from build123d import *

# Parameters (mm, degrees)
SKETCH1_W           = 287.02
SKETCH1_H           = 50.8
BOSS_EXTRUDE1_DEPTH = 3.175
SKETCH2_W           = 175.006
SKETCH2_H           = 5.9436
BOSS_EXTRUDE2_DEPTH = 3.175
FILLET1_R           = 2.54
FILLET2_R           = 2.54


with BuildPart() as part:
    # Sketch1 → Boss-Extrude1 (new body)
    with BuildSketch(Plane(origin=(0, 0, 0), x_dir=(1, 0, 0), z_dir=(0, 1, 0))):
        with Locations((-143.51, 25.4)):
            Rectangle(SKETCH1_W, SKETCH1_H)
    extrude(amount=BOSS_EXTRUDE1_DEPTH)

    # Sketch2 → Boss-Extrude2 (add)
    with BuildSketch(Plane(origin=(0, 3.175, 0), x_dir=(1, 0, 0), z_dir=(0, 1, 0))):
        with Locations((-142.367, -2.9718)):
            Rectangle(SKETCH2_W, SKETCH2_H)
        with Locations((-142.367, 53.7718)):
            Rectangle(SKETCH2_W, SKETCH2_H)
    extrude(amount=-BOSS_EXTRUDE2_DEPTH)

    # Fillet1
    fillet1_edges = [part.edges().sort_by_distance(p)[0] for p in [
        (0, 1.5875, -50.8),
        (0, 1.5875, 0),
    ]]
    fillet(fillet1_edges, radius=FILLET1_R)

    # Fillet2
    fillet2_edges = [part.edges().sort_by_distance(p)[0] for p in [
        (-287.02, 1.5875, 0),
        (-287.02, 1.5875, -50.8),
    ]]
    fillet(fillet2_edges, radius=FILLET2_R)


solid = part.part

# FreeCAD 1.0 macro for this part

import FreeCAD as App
import Part
import Sketcher

V = App.Vector
Q = App.Units.Quantity


def edges_at(feature, points):
    """Names of the edges that pass closest to the given points."""
    edges = feature.Shape.Edges
    near = lambda p: min(range(len(edges)), key=lambda i: edges[i].distToShape(Part.Vertex(*p))[0])
    return sorted({f"Edge{near(p) + 1}" for p in points})


def add_polygon(sketch, points):
    """Adds a closed chain of lines whose ends are joined by coincident constraints."""
    first, n = sketch.GeometryCount, len(points)
    for a, b in zip(points, points[1:] + points[:1]):
        sketch.addGeometry(Part.LineSegment(App.Vector(*a, 0), App.Vector(*b, 0)), False)
    for i in range(n):
        sketch.addConstraint(Sketcher.Constraint("Coincident", first + i, 2, first + (i + 1) % n, 1))

doc = App.newDocument("Part")
body = doc.addObject("PartDesign::Body", "Body")

sketch1 = doc.addObject("Sketcher::SketchObject", "Sketch")
body.addObject(sketch1)
sketch1.AttachmentSupport = (doc.XZ_Plane, [""])
sketch1.MapMode = "FlatFace"
add_polygon(sketch1, [(-287.02, -50.8), (-287.02, 0), (0, 0), (0, -50.8)])
sketch1.addConstraint(Sketcher.Constraint("Vertical", 0))
sketch1.addConstraint(Sketcher.Constraint("Horizontal", 1))
sketch1.addConstraint(Sketcher.Constraint("Vertical", 2))
sketch1.addConstraint(Sketcher.Constraint("Horizontal", 3))
sketch1.addConstraint(Sketcher.Constraint("Coincident", 1, 2, -1, 1))
sketch1.addConstraint(Sketcher.Constraint("DistanceY", 0, 1, 0, 2, Q("2 in")))
sketch1.addConstraint(Sketcher.Constraint("DistanceX", 1, 1, 1, 2, Q("11.3 in")))
pad1 = doc.addObject("PartDesign::Pad", "Pad")
body.addObject(pad1)
pad1.Profile = sketch1
pad1.Length = Q("0.125 in")
pad1.Reversed = True

sketch2 = doc.addObject("Sketcher::SketchObject", "Sketch001")
body.addObject(sketch2)
sketch2.AttachmentSupport = (doc.XZ_Plane, [""])
sketch2.MapMode = "FlatFace"
sketch2.AttachmentOffset = App.Placement(V(0, 0, -0.125 * 25.4), App.Rotation())
add_polygon(sketch2, [(-229.87, 0), (-229.87, 5.9436), (-54.864, 5.9436), (-54.864, 0)])
add_polygon(sketch2, [(-229.87, -56.7436), (-229.87, -50.8), (-54.864, -50.8), (-54.864, -56.7436)])
sketch2.addConstraint(Sketcher.Constraint("Vertical", 0))
sketch2.addConstraint(Sketcher.Constraint("Horizontal", 1))
sketch2.addConstraint(Sketcher.Constraint("Vertical", 2))
sketch2.addConstraint(Sketcher.Constraint("Horizontal", 3))
sketch2.addConstraint(Sketcher.Constraint("Vertical", 4))
sketch2.addConstraint(Sketcher.Constraint("Horizontal", 5))
sketch2.addConstraint(Sketcher.Constraint("Vertical", 6))
sketch2.addConstraint(Sketcher.Constraint("Horizontal", 7))
sketch2.addConstraint(Sketcher.Constraint("PointOnObject", 2, 2, -1))
sketch2.addConstraint(Sketcher.Constraint("Vertical", 3, 2, 4, 2))
sketch2.addConstraint(Sketcher.Constraint("Vertical", 2, 2, 5, 2))
sketch2.addConstraint(Sketcher.Constraint("Equal", 2, 4))
sketch2.addConstraint(Sketcher.Constraint("DistanceY", 4, 2, -1, 1, Q("2 in")))
sketch2.addConstraint(Sketcher.Constraint("DistanceX", 1, 1, 1, 2, Q("6.89 in")))
sketch2.addConstraint(Sketcher.Constraint("DistanceY", 0, 1, 0, 2, Q("0.234 in")))
sketch2.addConstraint(Sketcher.Constraint("DistanceX", 0, 2, -1, 1, Q("9.05 in")))
pad2 = doc.addObject("PartDesign::Pad", "Pad001")
body.addObject(pad2)
pad2.Profile = sketch2
pad2.Length = Q("0.125 in")
doc.recompute()

fillet = doc.addObject("PartDesign::Fillet", "Fillet")
body.addObject(fillet)
fillet.Base = (pad2, edges_at(pad2, [(0, 1.587, -50.8), (0, 1.587, 0)]))
fillet.Radius = Q("0.1 in")
doc.recompute()

fillet2 = doc.addObject("PartDesign::Fillet", "Fillet001")
body.addObject(fillet2)
fillet2.Base = (fillet, edges_at(fillet, [(-287.02, 1.587, 0), (-287.02, 1.587, -50.8)]))
fillet2.Radius = Q("0.1 in")

doc.recompute()
